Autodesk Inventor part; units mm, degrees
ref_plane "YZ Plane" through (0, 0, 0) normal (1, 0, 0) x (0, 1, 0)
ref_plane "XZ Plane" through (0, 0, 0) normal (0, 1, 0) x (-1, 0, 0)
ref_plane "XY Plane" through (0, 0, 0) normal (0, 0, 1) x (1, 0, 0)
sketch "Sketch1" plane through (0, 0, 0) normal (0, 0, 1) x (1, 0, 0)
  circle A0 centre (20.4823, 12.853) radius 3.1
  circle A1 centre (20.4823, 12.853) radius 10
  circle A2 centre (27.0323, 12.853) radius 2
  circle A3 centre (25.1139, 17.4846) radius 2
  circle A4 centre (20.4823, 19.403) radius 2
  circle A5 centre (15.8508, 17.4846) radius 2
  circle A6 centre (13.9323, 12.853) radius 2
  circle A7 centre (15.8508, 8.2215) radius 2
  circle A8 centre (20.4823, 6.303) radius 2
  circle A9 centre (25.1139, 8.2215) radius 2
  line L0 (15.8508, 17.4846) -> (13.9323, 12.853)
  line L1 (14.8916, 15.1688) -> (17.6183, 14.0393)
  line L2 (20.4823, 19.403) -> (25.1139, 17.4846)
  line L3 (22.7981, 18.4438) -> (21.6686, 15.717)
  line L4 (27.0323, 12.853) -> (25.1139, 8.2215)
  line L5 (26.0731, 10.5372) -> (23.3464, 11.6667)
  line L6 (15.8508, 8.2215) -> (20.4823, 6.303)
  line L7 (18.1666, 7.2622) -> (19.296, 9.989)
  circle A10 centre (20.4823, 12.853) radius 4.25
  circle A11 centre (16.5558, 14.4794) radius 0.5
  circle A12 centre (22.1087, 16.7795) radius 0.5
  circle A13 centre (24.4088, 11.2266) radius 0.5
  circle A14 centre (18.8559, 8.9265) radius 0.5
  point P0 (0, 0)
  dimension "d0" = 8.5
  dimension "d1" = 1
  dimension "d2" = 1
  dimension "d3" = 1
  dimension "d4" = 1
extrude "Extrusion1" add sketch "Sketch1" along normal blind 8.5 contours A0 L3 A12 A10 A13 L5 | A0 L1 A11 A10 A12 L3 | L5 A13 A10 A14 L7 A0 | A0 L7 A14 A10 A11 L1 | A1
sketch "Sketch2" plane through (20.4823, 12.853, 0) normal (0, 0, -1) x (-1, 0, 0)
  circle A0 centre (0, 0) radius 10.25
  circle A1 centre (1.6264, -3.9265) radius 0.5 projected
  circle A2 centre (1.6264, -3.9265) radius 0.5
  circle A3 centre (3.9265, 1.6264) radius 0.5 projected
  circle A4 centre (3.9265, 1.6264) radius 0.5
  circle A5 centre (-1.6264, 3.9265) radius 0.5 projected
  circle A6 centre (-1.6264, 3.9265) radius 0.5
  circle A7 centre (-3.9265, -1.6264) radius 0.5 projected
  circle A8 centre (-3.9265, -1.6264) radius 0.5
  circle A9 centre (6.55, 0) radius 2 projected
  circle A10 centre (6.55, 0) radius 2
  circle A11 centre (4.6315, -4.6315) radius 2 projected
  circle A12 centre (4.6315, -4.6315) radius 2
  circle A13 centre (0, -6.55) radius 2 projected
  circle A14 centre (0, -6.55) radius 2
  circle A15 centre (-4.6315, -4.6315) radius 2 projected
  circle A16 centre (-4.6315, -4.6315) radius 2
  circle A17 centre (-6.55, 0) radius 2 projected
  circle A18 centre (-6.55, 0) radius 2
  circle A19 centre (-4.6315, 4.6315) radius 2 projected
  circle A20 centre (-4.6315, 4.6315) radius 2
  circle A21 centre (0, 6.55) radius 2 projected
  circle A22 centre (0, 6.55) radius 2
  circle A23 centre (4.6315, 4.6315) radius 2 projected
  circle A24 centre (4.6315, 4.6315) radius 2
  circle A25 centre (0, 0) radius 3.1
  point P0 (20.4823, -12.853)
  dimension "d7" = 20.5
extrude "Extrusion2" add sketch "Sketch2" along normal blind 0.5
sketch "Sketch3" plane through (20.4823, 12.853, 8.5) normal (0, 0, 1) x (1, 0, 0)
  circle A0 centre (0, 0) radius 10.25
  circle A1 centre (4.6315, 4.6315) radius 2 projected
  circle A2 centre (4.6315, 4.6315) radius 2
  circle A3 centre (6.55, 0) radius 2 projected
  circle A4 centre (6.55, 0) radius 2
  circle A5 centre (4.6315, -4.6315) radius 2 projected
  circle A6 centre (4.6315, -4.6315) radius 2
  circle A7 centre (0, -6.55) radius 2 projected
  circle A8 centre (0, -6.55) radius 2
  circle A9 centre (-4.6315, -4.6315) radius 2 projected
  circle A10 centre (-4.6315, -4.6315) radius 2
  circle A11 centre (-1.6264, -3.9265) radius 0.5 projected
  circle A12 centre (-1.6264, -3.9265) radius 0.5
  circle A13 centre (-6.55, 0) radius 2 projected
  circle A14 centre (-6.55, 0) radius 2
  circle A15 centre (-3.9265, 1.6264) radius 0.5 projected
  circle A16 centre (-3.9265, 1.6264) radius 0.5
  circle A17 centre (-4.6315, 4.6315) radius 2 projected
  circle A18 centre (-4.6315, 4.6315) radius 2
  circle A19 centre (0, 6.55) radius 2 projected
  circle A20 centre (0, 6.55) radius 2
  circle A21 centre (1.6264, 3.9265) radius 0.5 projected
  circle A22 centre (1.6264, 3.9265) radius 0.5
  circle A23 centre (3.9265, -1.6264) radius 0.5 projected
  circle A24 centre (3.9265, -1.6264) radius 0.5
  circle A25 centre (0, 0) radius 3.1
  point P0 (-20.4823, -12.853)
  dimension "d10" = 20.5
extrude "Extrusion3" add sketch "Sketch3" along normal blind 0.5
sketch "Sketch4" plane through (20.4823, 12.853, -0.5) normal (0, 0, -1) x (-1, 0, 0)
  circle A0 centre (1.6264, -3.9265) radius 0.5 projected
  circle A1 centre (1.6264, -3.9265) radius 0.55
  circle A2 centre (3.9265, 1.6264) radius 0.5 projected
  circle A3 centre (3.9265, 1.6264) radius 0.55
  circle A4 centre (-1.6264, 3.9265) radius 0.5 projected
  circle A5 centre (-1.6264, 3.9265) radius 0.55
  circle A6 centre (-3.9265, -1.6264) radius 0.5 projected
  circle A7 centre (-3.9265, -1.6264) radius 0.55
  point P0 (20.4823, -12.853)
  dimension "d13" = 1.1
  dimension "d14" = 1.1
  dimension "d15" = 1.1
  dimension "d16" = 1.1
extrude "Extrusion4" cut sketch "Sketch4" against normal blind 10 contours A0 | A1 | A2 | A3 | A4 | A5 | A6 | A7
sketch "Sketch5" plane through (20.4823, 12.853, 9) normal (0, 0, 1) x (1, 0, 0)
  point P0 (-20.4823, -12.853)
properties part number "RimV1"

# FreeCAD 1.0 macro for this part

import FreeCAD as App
import Part
import Sketcher
from FreeCAD import Vector

doc = App.newDocument("Part")
params = doc.addObject("Spreadsheet::Sheet", "Params")
for row, (alias, value) in enumerate([
    ("sketch1_diameter", "1 mm"),
    ("sketch1_diameter2", "20 mm"),
    ("sketch1_diameter3", "4 mm"),
    ("sketch1_diameter4", "6.2 mm"),
    ("pad1_length", "8.5 mm"),
    ("sketch2_diameter", "20.5 mm"),
    ("sketch2_diameter2", "4 mm"),
    ("sketch2_diameter3", "1 mm"),
    ("sketch2_diameter4", "6.2 mm"),
    ("pad2_length", "0.5 mm"),
    ("sketch3_diameter", "20.5 mm"),
    ("sketch3_diameter2", "4 mm"),
    ("sketch3_diameter3", "1 mm"),
    ("sketch3_diameter4", "6.2 mm"),
    ("pad3_length", "0.5 mm"),
    ("sketch4_diameter", "1.1 mm"),
    ("pocket1_length", "10 mm"),
], start=1):
    params.set(f"A{row}", alias)
    params.set(f"B{row}", "=" + value)
    params.setAlias(f"B{row}", alias)

body = doc.addObject("PartDesign::Body", "Body")

# Sketch on XY plane
sketch1 = doc.addObject("Sketcher::SketchObject", "Sketch")
body.addObject(sketch1)
sketch1.AttachmentSupport = (doc.XY_Plane, [""])
sketch1.MapMode = "FlatFace"
sketch1.addGeometry([
    Part.Circle(Vector(20.5, 12.9, 0), Vector(0, 0, 1), 10),  # 0
    Part.Circle(Vector(20.5, 12.9, 0), Vector(0, 0, 1), 3.1),  # 1
    Part.Circle(Vector(22.1, 16.8, 0), Vector(0, 0, 1), 0.5),  # 2
    Part.Circle(Vector(24.4, 11.2, 0), Vector(0, 0, 1), 0.5),  # 3
    Part.Circle(Vector(16.6, 14.5, 0), Vector(0, 0, 1), 0.5),  # 4
    Part.Circle(Vector(15.9, 8.2, 0), Vector(0, 0, 1), 2),  # 5
    Part.Circle(Vector(20.5, 6.3, 0), Vector(0, 0, 1), 2),  # 6
    Part.Circle(Vector(25.1, 8.2, 0), Vector(0, 0, 1), 2),  # 7
    Part.Circle(Vector(13.9, 12.9, 0), Vector(0, 0, 1), 2),  # 8
    Part.Circle(Vector(15.9, 17.5, 0), Vector(0, 0, 1), 2),  # 9
    Part.Circle(Vector(18.9, 8.9, 0), Vector(0, 0, 1), 0.5),  # 10
    Part.Circle(Vector(25.1, 17.5, 0), Vector(0, 0, 1), 2),  # 11
    Part.Circle(Vector(27, 12.9, 0), Vector(0, 0, 1), 2),  # 12
    Part.Circle(Vector(20.5, 19.4, 0), Vector(0, 0, 1), 2),  # 13
], False)
sketch1.addConstraint([
    Sketcher.Constraint("Coincident", 1, 3, 0, 3),
    Sketcher.Constraint("Equal", 2, 3),
    Sketcher.Constraint("Equal", 3, 4),
    Sketcher.Constraint("Equal", 5, 6),
    Sketcher.Constraint("Equal", 6, 7),
    Sketcher.Constraint("Equal", 7, 8),
    Sketcher.Constraint("Equal", 8, 9),
    Sketcher.Constraint("Equal", 4, 10),
    Sketcher.Constraint("Equal", 9, 11),
    Sketcher.Constraint("Equal", 11, 12),
    Sketcher.Constraint("Equal", 12, 13),
    Sketcher.Constraint("Horizontal", 5, 3, 7, 3),
    Sketcher.Constraint("Horizontal", 1, 3, 8, 3),
    Sketcher.Constraint("Horizontal", 9, 3, 11, 3),
    Sketcher.Constraint("Horizontal", 8, 3, 12, 3),
    Sketcher.Constraint("Vertical", 1, 3, 6, 3),
    Sketcher.Constraint("Vertical", 5, 3, 9, 3),
    Sketcher.Constraint("Vertical", 7, 3, 11, 3),
    Sketcher.Constraint("Vertical", 6, 3, 13, 3),
    Sketcher.Constraint("Diameter", 2, 1.0),
    Sketcher.Constraint("Diameter", 0, 20.0),
    Sketcher.Constraint("Diameter", 5, 4.0),
    Sketcher.Constraint("Diameter", 1, 6.2),
    Sketcher.Constraint("DistanceX", 2, 3, 3, 3, 2.3),
    Sketcher.Constraint("DistanceY", 4, 3, 2, 3, 2.3),
    Sketcher.Constraint("DistanceX", 4, 3, 10, 3, 2.3),
    Sketcher.Constraint("DistanceY", 6, 3, 0, 3, 6.55),
    Sketcher.Constraint("DistanceX", 8, 3, 0, 3, 6.55),
    Sketcher.Constraint("DistanceX", 0, 3, 12, 3, 6.55),
    Sketcher.Constraint("DistanceY", 0, 3, 13, 3, 6.55),
    Sketcher.Constraint("DistanceY", -1, 1, 0, 3, 12.853),
    Sketcher.Constraint("DistanceX", -1, 1, 7, 3, 25.114),
    Sketcher.Constraint("DistanceX", -1, 1, 10, 3, 18.856),
    Sketcher.Constraint("DistanceY", 3, 3, 2, 3, 5.553),
    Sketcher.Constraint("DistanceX", 4, 3, 2, 3, 5.553),
    Sketcher.Constraint("DistanceX", 5, 3, 4, 3, 0.705),
    Sketcher.Constraint("DistanceY", 5, 3, 4, 3, 6.258),
    Sketcher.Constraint("DistanceY", 2, 3, 9, 3, 0.705),
    Sketcher.Constraint("DistanceY", 5, 3, 10, 3, 0.705),
    Sketcher.Constraint("DistanceX", -1, 1, 0, 3, 20.4823),
    Sketcher.Constraint("DistanceY", -1, 1, 2, 3, 16.7795),
])
sketch1.setExpression("Constraints[19]", "Params.sketch1_diameter")
sketch1.setExpression("Constraints[20]", "Params.sketch1_diameter2")
sketch1.setExpression("Constraints[21]", "Params.sketch1_diameter3")
sketch1.setExpression("Constraints[22]", "Params.sketch1_diameter4")
pad1 = doc.addObject("PartDesign::Pad", "Pad")
body.addObject(pad1)
pad1.Profile = sketch1
pad1.setExpression("Length", "Params.pad1_length")

# Sketch on XY plane
sketch2 = doc.addObject("Sketcher::SketchObject", "Sketch001")
body.addObject(sketch2)
sketch2.AttachmentSupport = (doc.XY_Plane, [""])
sketch2.MapMode = "FlatFace"
sketch2.addGeometry([
    Part.Circle(Vector(20.5, 12.9, 0), Vector(0, 0, 1), 10.2),  # 0
    Part.Circle(Vector(25.1, 8.2, 0), Vector(0, 0, 1), 2),  # 1
    Part.Circle(Vector(24.4, 11.2, 0), Vector(0, 0, 1), 0.5),  # 2
    Part.Circle(Vector(20.5, 6.3, 0), Vector(0, 0, 1), 2),  # 3
    Part.Circle(Vector(18.9, 8.9, 0), Vector(0, 0, 1), 0.5),  # 4
    Part.Circle(Vector(15.9, 8.2, 0), Vector(0, 0, 1), 2),  # 5
    Part.Circle(Vector(27, 12.9, 0), Vector(0, 0, 1), 2),  # 6
    Part.Circle(Vector(25.1, 17.5, 0), Vector(0, 0, 1), 2),  # 7
    Part.Circle(Vector(22.1, 16.8, 0), Vector(0, 0, 1), 0.5),  # 8
    Part.Circle(Vector(20.5, 12.9, 0), Vector(0, 0, 1), 3.1),  # 9
    Part.Circle(Vector(16.6, 14.5, 0), Vector(0, 0, 1), 0.5),  # 10
    Part.Circle(Vector(15.9, 17.5, 0), Vector(0, 0, 1), 2),  # 11
    Part.Circle(Vector(13.9, 12.9, 0), Vector(0, 0, 1), 2),  # 12
    Part.Circle(Vector(20.5, 19.4, 0), Vector(0, 0, 1), 2),  # 13
], False)
sketch2.addConstraint([
    Sketcher.Constraint("Coincident", 9, 3, 0, 3),
    Sketcher.Constraint("Equal", 1, 3),
    Sketcher.Constraint("Equal", 2, 4),
    Sketcher.Constraint("Equal", 3, 5),
    Sketcher.Constraint("Equal", 5, 6),
    Sketcher.Constraint("Equal", 6, 7),
    Sketcher.Constraint("Equal", 4, 8),
    Sketcher.Constraint("Equal", 8, 10),
    Sketcher.Constraint("Equal", 7, 11),
    Sketcher.Constraint("Equal", 11, 12),
    Sketcher.Constraint("Equal", 12, 13),
    Sketcher.Constraint("Horizontal", 1, 3, 5, 3),
    Sketcher.Constraint("Horizontal", 0, 3, 6, 3),
    Sketcher.Constraint("Horizontal", 7, 3, 11, 3),
    Sketcher.Constraint("Horizontal", 9, 3, 12, 3),
    Sketcher.Constraint("Vertical", 0, 3, 3, 3),
    Sketcher.Constraint("Vertical", 1, 3, 7, 3),
    Sketcher.Constraint("Vertical", 5, 3, 11, 3),
    Sketcher.Constraint("Vertical", 9, 3, 13, 3),
    Sketcher.Constraint("Diameter", 0, 20.5),
    Sketcher.Constraint("Diameter", 1, 4.0),
    Sketcher.Constraint("Diameter", 2, 1.0),
    Sketcher.Constraint("Diameter", 9, 6.2),
    Sketcher.Constraint("DistanceY", 4, 3, 2, 3, 2.3),
    Sketcher.Constraint("DistanceX", 8, 3, 2, 3, 2.3),
    Sketcher.Constraint("DistanceY", 10, 3, 8, 3, 2.3),
    Sketcher.Constraint("DistanceX", 10, 3, 4, 3, 2.3),
    Sketcher.Constraint("DistanceY", 3, 3, 0, 3, 6.55),
    Sketcher.Constraint("DistanceX", 0, 3, 6, 3, 6.55),
    Sketcher.Constraint("DistanceX", 12, 3, 0, 3, 6.55),
    Sketcher.Constraint("DistanceY", 0, 3, 13, 3, 6.55),
    Sketcher.Constraint("DistanceY", -1, 1, 0, 3, 12.853),
    Sketcher.Constraint("DistanceX", -1, 1, 4, 3, 18.856),
    Sketcher.Constraint("DistanceX", 2, 3, 1, 3, 0.705),
    Sketcher.Constraint("DistanceY", 1, 3, 2, 3, 3.005),
    Sketcher.Constraint("DistanceX", 4, 3, 2, 3, 5.553),
    Sketcher.Constraint("DistanceX", 5, 3, 4, 3, 3.005),
    Sketcher.Constraint("DistanceY", 2, 3, 7, 3, 6.258),
    Sketcher.Constraint("DistanceY", 8, 3, 7, 3, 0.705),
    Sketcher.Constraint("DistanceX", -1, 1, 0, 3, 20.4823),
    Sketcher.Constraint("DistanceY", -1, 1, 1, 3, 8.2215),
])
sketch2.setExpression("Constraints[19]", "Params.sketch2_diameter")
sketch2.setExpression("Constraints[20]", "Params.sketch2_diameter2")
sketch2.setExpression("Constraints[21]", "Params.sketch2_diameter3")
sketch2.setExpression("Constraints[22]", "Params.sketch2_diameter4")
pad2 = doc.addObject("PartDesign::Pad", "Pad001")
body.addObject(pad2)
pad2.Profile = sketch2
pad2.setExpression("Length", "Params.pad2_length")
pad2.Reversed = True

# Sketch on XY plane
sketch3 = doc.addObject("Sketcher::SketchObject", "Sketch002")
body.addObject(sketch3)
sketch3.AttachmentSupport = (doc.XY_Plane, [""])
sketch3.MapMode = "FlatFace"
sketch3.AttachmentOffset = App.Placement(Vector(0, 0, 8.5), App.Rotation())
sketch3.addGeometry([
    Part.Circle(Vector(20.5, 12.9, 0), Vector(0, 0, 1), 10.2),  # 0
    Part.Circle(Vector(15.9, 8.2, 0), Vector(0, 0, 1), 2),  # 1
    Part.Circle(Vector(18.9, 8.9, 0), Vector(0, 0, 1), 0.5),  # 2
    Part.Circle(Vector(20.5, 6.3, 0), Vector(0, 0, 1), 2),  # 3
    Part.Circle(Vector(25.1, 8.2, 0), Vector(0, 0, 1), 2),  # 4
    Part.Circle(Vector(24.4, 11.2, 0), Vector(0, 0, 1), 0.5),  # 5
    Part.Circle(Vector(13.9, 12.9, 0), Vector(0, 0, 1), 2),  # 6
    Part.Circle(Vector(16.6, 14.5, 0), Vector(0, 0, 1), 0.5),  # 7
    Part.Circle(Vector(15.9, 17.5, 0), Vector(0, 0, 1), 2),  # 8
    Part.Circle(Vector(20.5, 12.9, 0), Vector(0, 0, 1), 3.1),  # 9
    Part.Circle(Vector(22.1, 16.8, 0), Vector(0, 0, 1), 0.5),  # 10
    Part.Circle(Vector(25.1, 17.5, 0), Vector(0, 0, 1), 2),  # 11
    Part.Circle(Vector(27, 12.9, 0), Vector(0, 0, 1), 2),  # 12
    Part.Circle(Vector(20.5, 19.4, 0), Vector(0, 0, 1), 2),  # 13
], False)
sketch3.addConstraint([
    Sketcher.Constraint("Coincident", 9, 3, 0, 3),
    Sketcher.Constraint("Equal", 1, 3),
    Sketcher.Constraint("Equal", 3, 4),
    Sketcher.Constraint("Equal", 2, 5),
    Sketcher.Constraint("Equal", 4, 6),
    Sketcher.Constraint("Equal", 5, 7),
    Sketcher.Constraint("Equal", 6, 8),
    Sketcher.Constraint("Equal", 7, 10),
    Sketcher.Constraint("Equal", 8, 11),
    Sketcher.Constraint("Equal", 11, 12),
    Sketcher.Constraint("Equal", 12, 13),
    Sketcher.Constraint("Horizontal", 1, 3, 4, 3),
    Sketcher.Constraint("Horizontal", 0, 3, 6, 3),
    Sketcher.Constraint("Horizontal", 8, 3, 11, 3),
    Sketcher.Constraint("Horizontal", 9, 3, 12, 3),
    Sketcher.Constraint("Vertical", 0, 3, 3, 3),
    Sketcher.Constraint("Vertical", 1, 3, 8, 3),
    Sketcher.Constraint("Vertical", 4, 3, 11, 3),
    Sketcher.Constraint("Vertical", 9, 3, 13, 3),
    Sketcher.Constraint("Diameter", 0, 20.5),
    Sketcher.Constraint("Diameter", 1, 4.0),
    Sketcher.Constraint("Diameter", 2, 1.0),
    Sketcher.Constraint("Diameter", 9, 6.2),
    Sketcher.Constraint("DistanceY", 2, 3, 5, 3, 2.3),
    Sketcher.Constraint("DistanceX", 7, 3, 2, 3, 2.3),
    Sketcher.Constraint("DistanceY", 7, 3, 10, 3, 2.3),
    Sketcher.Constraint("DistanceX", 10, 3, 5, 3, 2.3),
    Sketcher.Constraint("DistanceY", 3, 3, 0, 3, 6.55),
    Sketcher.Constraint("DistanceX", 6, 3, 0, 3, 6.55),
    Sketcher.Constraint("DistanceX", 0, 3, 12, 3, 6.55),
    Sketcher.Constraint("DistanceY", 0, 3, 13, 3, 6.55),
    Sketcher.Constraint("DistanceY", -1, 1, 0, 3, 12.853),
    Sketcher.Constraint("DistanceX", -1, 1, 2, 3, 18.856),
    Sketcher.Constraint("DistanceX", 1, 3, 2, 3, 3.005),
    Sketcher.Constraint("DistanceY", 1, 3, 2, 3, 0.705),
    Sketcher.Constraint("DistanceX", 2, 3, 4, 3, 6.258),
    Sketcher.Constraint("DistanceX", 5, 3, 4, 3, 0.705),
    Sketcher.Constraint("DistanceY", 2, 3, 7, 3, 5.553),
    Sketcher.Constraint("DistanceY", 7, 3, 8, 3, 3.005),
    Sketcher.Constraint("DistanceX", -1, 1, 0, 3, 20.4823),
    Sketcher.Constraint("DistanceY", -1, 1, 1, 3, 8.2215),
])
sketch3.setExpression("Constraints[19]", "Params.sketch3_diameter")
sketch3.setExpression("Constraints[20]", "Params.sketch3_diameter2")
sketch3.setExpression("Constraints[21]", "Params.sketch3_diameter3")
sketch3.setExpression("Constraints[22]", "Params.sketch3_diameter4")
pad3 = doc.addObject("PartDesign::Pad", "Pad002")
body.addObject(pad3)
pad3.Profile = sketch3
pad3.setExpression("Length", "Params.pad3_length")

# Sketch on XY plane
sketch4 = doc.addObject("Sketcher::SketchObject", "Sketch003")
body.addObject(sketch4)
sketch4.AttachmentSupport = (doc.XY_Plane, [""])
sketch4.MapMode = "FlatFace"
sketch4.AttachmentOffset = App.Placement(Vector(0, 0, -0.5), App.Rotation())
sketch4.addGeometry([
    Part.Circle(Vector(18.9, 8.9, 0), Vector(0, 0, 1), 0.6),
    Part.Circle(Vector(16.6, 14.5, 0), Vector(0, 0, 1), 0.6),
    Part.Circle(Vector(22.1, 16.8, 0), Vector(0, 0, 1), 0.6),
    Part.Circle(Vector(24.4, 11.2, 0), Vector(0, 0, 1), 0.6),
], False)
sketch4.addConstraint([
    Sketcher.Constraint("Equal", 0, 1),
    Sketcher.Constraint("Equal", 1, 2),
    Sketcher.Constraint("Equal", 2, 3),
    Sketcher.Constraint("Diameter", 0, 1.1),
    Sketcher.Constraint("DistanceX", 1, 3, 0, 3, 2.3),
    Sketcher.Constraint("DistanceY", 1, 3, 2, 3, 2.3),
    Sketcher.Constraint("DistanceX", 2, 3, 3, 3, 2.3),
    Sketcher.Constraint("DistanceY", 0, 3, 3, 3, 2.3),
    Sketcher.Constraint("DistanceX", -1, 1, 0, 3, 18.856),
    Sketcher.Constraint("DistanceY", 0, 3, 1, 3, 5.553),
    Sketcher.Constraint("DistanceX", 1, 3, 2, 3, 5.553),
    Sketcher.Constraint("DistanceY", -1, 1, 0, 3, 8.9265),
])
sketch4.setExpression("Constraints[3]", "Params.sketch4_diameter")
pocket1 = doc.addObject("PartDesign::Pocket", "Pocket")
body.addObject(pocket1)
pocket1.Profile = sketch4
pocket1.setExpression("Length", "Params.pocket1_length")
pocket1.Reversed = True

doc.recompute()
